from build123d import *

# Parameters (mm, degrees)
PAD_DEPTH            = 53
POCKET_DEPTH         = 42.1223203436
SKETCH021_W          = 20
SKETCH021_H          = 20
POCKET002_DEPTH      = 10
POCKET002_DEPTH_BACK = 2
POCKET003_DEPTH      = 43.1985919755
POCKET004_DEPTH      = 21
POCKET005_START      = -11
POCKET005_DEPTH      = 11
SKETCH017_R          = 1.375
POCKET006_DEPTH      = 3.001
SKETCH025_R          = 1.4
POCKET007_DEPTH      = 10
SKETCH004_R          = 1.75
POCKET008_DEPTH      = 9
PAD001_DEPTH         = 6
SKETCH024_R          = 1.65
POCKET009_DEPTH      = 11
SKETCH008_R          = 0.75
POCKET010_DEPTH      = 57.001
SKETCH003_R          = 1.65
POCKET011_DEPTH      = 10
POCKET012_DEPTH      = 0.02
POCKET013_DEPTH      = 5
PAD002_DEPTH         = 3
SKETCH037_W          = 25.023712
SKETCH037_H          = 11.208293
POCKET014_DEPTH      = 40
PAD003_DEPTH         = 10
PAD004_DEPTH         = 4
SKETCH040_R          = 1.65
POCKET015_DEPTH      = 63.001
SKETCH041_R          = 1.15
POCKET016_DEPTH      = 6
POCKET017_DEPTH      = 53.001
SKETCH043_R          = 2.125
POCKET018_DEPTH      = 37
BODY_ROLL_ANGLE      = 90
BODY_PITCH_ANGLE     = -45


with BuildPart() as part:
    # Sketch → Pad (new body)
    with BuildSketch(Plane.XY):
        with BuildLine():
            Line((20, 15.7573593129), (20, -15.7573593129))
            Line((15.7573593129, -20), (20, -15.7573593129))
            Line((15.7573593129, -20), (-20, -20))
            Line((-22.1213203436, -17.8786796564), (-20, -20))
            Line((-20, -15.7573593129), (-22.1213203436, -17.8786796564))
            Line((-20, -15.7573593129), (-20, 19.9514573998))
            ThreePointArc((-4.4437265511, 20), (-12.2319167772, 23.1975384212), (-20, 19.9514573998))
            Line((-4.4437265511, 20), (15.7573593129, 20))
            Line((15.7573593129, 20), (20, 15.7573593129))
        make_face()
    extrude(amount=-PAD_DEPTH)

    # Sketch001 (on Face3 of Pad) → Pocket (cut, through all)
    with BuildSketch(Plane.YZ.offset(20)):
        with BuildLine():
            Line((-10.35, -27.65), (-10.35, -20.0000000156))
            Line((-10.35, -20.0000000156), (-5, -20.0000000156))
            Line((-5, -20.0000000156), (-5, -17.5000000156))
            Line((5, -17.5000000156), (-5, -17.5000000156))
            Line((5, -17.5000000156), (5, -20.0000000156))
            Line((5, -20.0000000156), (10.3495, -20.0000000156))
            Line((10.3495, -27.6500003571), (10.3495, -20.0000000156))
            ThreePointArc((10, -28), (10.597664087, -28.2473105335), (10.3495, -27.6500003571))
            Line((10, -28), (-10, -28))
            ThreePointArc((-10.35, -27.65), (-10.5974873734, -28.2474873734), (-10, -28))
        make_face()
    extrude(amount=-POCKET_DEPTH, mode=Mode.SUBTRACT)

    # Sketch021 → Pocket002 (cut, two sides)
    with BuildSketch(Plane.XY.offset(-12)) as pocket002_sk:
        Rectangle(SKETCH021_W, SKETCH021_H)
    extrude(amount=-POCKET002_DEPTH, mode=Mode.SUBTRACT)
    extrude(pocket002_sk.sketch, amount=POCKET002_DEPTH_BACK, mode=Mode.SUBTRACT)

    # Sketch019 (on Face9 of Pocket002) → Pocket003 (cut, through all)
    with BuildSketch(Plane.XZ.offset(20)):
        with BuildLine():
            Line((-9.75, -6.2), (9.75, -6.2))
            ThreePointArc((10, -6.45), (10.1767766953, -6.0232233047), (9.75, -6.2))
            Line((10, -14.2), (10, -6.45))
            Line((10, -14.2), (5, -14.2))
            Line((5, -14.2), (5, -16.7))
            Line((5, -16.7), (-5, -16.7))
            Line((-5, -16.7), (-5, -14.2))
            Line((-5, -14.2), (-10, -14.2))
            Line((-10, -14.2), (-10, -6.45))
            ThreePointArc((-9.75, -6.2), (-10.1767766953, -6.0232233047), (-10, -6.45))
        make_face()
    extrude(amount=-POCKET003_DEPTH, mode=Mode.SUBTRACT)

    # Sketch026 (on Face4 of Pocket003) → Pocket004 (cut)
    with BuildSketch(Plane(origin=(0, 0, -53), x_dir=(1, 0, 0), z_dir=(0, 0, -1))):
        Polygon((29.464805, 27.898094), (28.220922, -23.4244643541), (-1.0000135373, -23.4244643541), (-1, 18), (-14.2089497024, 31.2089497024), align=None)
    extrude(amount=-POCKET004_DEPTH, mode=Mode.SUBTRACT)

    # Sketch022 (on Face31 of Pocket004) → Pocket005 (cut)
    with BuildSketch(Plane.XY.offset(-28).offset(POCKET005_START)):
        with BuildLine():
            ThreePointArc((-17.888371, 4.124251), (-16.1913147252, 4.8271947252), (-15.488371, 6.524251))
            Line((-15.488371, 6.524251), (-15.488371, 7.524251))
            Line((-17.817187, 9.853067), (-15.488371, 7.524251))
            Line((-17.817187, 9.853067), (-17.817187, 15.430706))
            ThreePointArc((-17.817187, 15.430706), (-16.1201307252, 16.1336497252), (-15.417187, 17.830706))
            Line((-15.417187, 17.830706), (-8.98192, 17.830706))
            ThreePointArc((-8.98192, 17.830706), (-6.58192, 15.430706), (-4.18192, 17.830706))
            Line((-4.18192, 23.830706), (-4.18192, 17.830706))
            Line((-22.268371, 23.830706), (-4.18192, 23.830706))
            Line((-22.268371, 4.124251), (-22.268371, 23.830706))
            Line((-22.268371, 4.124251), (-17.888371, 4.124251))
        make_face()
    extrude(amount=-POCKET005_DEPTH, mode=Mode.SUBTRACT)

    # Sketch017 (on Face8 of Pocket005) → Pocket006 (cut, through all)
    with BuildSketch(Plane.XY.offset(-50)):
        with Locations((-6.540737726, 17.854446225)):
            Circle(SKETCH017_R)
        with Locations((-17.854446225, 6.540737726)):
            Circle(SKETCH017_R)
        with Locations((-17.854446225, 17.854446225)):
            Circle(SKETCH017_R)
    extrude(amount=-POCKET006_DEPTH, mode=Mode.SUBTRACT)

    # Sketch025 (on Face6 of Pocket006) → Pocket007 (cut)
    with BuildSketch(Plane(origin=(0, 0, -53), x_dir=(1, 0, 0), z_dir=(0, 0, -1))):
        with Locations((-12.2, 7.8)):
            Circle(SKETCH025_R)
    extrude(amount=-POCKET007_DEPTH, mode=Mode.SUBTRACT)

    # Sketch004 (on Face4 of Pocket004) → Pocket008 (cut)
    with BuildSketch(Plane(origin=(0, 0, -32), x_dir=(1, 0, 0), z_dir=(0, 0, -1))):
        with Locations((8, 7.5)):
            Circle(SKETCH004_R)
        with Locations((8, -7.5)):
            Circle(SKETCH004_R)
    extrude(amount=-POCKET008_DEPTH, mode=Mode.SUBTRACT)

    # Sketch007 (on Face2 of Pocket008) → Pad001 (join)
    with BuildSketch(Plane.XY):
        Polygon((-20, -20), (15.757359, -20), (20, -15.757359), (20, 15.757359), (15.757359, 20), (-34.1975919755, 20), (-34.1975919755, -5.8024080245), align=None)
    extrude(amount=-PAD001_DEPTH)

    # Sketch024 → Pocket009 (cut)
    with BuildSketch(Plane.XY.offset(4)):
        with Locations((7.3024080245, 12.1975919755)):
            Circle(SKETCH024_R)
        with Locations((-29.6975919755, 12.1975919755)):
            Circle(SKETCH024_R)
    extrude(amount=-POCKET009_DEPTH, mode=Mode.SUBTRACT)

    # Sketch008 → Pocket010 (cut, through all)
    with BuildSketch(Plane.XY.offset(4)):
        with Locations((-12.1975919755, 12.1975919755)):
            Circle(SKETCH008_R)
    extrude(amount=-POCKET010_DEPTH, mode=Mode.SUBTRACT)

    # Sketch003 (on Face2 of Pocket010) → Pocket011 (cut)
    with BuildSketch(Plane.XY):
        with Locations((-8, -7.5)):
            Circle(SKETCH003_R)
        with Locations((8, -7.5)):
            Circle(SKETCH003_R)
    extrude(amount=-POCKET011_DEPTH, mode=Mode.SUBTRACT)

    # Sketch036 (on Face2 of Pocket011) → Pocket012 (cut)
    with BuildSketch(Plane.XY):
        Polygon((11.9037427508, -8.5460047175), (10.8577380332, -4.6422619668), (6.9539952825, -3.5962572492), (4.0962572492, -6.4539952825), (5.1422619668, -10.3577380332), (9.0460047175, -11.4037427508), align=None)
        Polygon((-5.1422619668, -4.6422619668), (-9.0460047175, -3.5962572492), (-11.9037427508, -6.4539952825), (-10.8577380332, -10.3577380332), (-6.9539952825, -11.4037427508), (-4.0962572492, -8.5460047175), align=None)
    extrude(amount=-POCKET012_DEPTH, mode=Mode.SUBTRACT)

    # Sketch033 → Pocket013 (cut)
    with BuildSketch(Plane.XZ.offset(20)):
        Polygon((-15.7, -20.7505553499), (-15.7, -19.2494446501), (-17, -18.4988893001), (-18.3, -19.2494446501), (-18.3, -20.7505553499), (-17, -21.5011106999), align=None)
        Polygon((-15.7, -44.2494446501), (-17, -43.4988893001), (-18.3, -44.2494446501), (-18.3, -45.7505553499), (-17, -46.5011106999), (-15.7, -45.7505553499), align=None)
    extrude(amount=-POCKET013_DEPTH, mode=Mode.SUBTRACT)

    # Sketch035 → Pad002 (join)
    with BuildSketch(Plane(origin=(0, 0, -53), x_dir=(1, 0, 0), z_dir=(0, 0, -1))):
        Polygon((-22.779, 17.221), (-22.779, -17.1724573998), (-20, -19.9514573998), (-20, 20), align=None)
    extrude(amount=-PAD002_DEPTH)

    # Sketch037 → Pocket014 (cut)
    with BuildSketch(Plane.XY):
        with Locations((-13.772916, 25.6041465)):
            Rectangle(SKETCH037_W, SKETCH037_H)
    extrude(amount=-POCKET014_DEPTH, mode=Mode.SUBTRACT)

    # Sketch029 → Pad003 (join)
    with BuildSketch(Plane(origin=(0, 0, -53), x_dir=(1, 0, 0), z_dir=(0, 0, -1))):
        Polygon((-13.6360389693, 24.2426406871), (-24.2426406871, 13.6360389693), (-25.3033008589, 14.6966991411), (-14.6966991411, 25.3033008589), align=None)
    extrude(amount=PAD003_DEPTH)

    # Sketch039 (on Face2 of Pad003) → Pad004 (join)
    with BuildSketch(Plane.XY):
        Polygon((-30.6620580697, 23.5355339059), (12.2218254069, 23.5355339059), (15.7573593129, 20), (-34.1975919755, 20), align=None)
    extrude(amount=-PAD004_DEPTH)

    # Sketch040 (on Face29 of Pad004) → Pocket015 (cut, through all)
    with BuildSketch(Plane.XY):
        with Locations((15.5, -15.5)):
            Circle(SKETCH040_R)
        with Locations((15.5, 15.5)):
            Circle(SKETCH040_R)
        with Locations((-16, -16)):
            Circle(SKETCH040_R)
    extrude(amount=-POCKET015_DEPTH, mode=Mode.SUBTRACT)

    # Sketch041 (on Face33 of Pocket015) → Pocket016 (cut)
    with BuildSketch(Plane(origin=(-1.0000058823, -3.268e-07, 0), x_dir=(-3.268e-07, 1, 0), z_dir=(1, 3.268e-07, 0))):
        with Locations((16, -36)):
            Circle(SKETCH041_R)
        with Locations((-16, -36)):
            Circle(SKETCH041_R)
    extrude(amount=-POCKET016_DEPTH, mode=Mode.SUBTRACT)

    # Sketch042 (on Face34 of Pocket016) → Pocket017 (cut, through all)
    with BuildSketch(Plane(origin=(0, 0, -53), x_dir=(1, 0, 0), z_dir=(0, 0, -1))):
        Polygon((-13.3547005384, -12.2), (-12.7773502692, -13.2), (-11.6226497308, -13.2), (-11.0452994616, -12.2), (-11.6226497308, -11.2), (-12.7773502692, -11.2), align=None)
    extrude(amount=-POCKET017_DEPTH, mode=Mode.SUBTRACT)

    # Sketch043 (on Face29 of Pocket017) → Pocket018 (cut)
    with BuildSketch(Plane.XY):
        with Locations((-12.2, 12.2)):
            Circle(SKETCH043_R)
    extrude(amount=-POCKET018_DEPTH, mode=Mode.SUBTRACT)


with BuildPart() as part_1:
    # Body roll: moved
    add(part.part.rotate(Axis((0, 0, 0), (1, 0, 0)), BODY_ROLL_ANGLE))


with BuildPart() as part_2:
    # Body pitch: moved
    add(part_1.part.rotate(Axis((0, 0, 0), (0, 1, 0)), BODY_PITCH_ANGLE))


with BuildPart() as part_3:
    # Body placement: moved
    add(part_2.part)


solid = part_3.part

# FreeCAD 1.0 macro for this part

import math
import FreeCAD as App
import Part
import Sketcher
Q = App.Units.Quantity


def add_polygon(sketch, points):
    """Adds a closed chain of lines whose ends are joined by coincident constraints."""
    first, n = sketch.GeometryCount, len(points)
    for a, b in zip(points, points[1:] + points[:1]):
        sketch.addGeometry(Part.LineSegment(App.Vector(*a, 0), App.Vector(*b, 0)), False)
    for i in range(n):
        sketch.addConstraint(Sketcher.Constraint("Coincident", first + i, 2, first + (i + 1) % n, 1))

doc = App.newDocument("Part")
body = doc.addObject("PartDesign::Body", "Body")

sketch1 = body.newObject("Sketcher::SketchObject", "Sketch")
sketch1.AttachmentSupport = (doc.getObject("XY_Plane"), [""])
sketch1.MapMode = "FlatFace"
sketch1.addGeometry(Part.LineSegment(App.Vector(20, -15.8, 0), App.Vector(20, 15.8, 0)), False)
sketch1.addGeometry(Part.LineSegment(App.Vector(20, 15.8, 0), App.Vector(15.8, 20, 0)), False)
sketch1.addGeometry(Part.LineSegment(App.Vector(15.8, 20, 0), App.Vector(-4.4, 20, 0)), False)
sketch1.addGeometry(Part.ArcOfCircle(Part.Circle(App.Vector(-12.2, 12.2, 0), App.Vector(0, 0, 1), 11), math.radians(45), math.radians(135)), False)
sketch1.addGeometry(Part.LineSegment(App.Vector(-20, 20, 0), App.Vector(-20, -15.8, 0)), False)
sketch1.addGeometry(Part.LineSegment(App.Vector(-20, -15.8, 0), App.Vector(-22.1, -17.9, 0)), False)
sketch1.addGeometry(Part.LineSegment(App.Vector(-22.1, -17.9, 0), App.Vector(-20, -20, 0)), False)
sketch1.addGeometry(Part.LineSegment(App.Vector(-20, -20, 0), App.Vector(15.8, -20, 0)), False)
sketch1.addGeometry(Part.LineSegment(App.Vector(15.8, -20, 0), App.Vector(20, -15.8, 0)), False)
sketch1.addConstraint(Sketcher.Constraint("Coincident", 0, 2, 1, 1))
sketch1.addConstraint(Sketcher.Constraint("Coincident", 1, 2, 2, 1))
sketch1.addConstraint(Sketcher.Constraint("Coincident", 2, 2, 3, 1))
sketch1.addConstraint(Sketcher.Constraint("Coincident", 3, 2, 4, 1))
sketch1.addConstraint(Sketcher.Constraint("Coincident", 4, 2, 5, 1))
sketch1.addConstraint(Sketcher.Constraint("Coincident", 5, 2, 6, 1))
sketch1.addConstraint(Sketcher.Constraint("Coincident", 6, 2, 7, 1))
sketch1.addConstraint(Sketcher.Constraint("Coincident", 7, 2, 8, 1))
sketch1.addConstraint(Sketcher.Constraint("Coincident", 8, 2, 0, 1))
sketch1.addConstraint(Sketcher.Constraint("Vertical", 0))
sketch1.addConstraint(Sketcher.Constraint("Horizontal", 2))
sketch1.addConstraint(Sketcher.Constraint("Vertical", 4))
sketch1.addConstraint(Sketcher.Constraint("Horizontal", 7))
sketch1.addConstraint(Sketcher.Constraint("Symmetric", 0, 2, 4, 2, -1, 1))
sketch1.addConstraint(Sketcher.Constraint("Symmetric", 1, 2, 7, 2, -1))
sketch1.addConstraint(Sketcher.Constraint("Perpendicular", 1, 5))
sketch1.addConstraint(Sketcher.Constraint("Perpendicular", 5, 6))
sketch1.addConstraint(Sketcher.Constraint("Perpendicular", 6, 8))
sketch1.addConstraint(Sketcher.Constraint("Horizontal", 4, 2, 8, 2))
sketch1.addConstraint(Sketcher.Constraint("Vertical", 4, 2, 6, 2))
sketch1.addConstraint(Sketcher.Constraint("Radius", 3, Q("11 mm")))
sketch1.addConstraint(Sketcher.Constraint("Distance", 1, Q("6 mm")))
sketch1.addConstraint(Sketcher.Constraint("DistanceX", -1, 1, 0, 2, Q("20 mm")))
sketch1.addConstraint(Sketcher.Constraint("DistanceY", -1, 1, 1, 2, Q("20 mm")))
sketch1.addConstraint(Sketcher.Constraint("DistanceY", 0, 2, 3, 2, Q("4.194098 mm")))
sketch1.addConstraint(Sketcher.Constraint("DistanceX", 2, 2, 2, 1, Q("20.201086 mm")))
pad1 = body.newObject("PartDesign::Pad", "Pad")
pad1.Profile = sketch1
pad1.Length = 53
pad1.Reversed = True

sketch2 = body.newObject("Sketcher::SketchObject", "Sketch001")
sketch2.AttachmentSupport = (doc.getObject("YZ_Plane"), [""])
sketch2.MapMode = "FlatFace"
sketch2.AttachmentOffset = App.Placement(App.Vector(0, 0, 20), App.Rotation())
sketch2.addGeometry(Part.LineSegment(App.Vector(-10.35, -20, 0), App.Vector(-10.35, -27.65, 0)), False)
sketch2.addGeometry(Part.ArcOfCircle(Part.Circle(App.Vector(-10.35, -28, 0), App.Vector(0, 0, 1), 0.35), math.radians(90), math.radians(360)), False)
sketch2.addGeometry(Part.LineSegment(App.Vector(-10, -28, 0), App.Vector(10, -28, 0)), False)
sketch2.addGeometry(Part.ArcOfCircle(Part.Circle(App.Vector(10.35, -28, 0), App.Vector(0, 0, 1), 0.35), math.radians(180), math.radians(450)), False)
sketch2.addGeometry(Part.LineSegment(App.Vector(10.35, -27.65, 0), App.Vector(10.35, -20, 0)), False)
sketch2.addGeometry(Part.LineSegment(App.Vector(10.35, -20, 0), App.Vector(5, -20, 0)), False)
sketch2.addGeometry(Part.LineSegment(App.Vector(5, -20, 0), App.Vector(5, -17.5, 0)), False)
sketch2.addGeometry(Part.LineSegment(App.Vector(5, -17.5, 0), App.Vector(-5, -17.5, 0)), False)
sketch2.addGeometry(Part.LineSegment(App.Vector(-5, -17.5, 0), App.Vector(-5, -20, 0)), False)
sketch2.addGeometry(Part.LineSegment(App.Vector(-5, -20, 0), App.Vector(-10.35, -20, 0)), False)
sketch2.addConstraint(Sketcher.Constraint("Coincident", 0, 2, 1, 1))
sketch2.addConstraint(Sketcher.Constraint("Coincident", 1, 2, 2, 1))
sketch2.addConstraint(Sketcher.Constraint("Coincident", 2, 2, 3, 1))
sketch2.addConstraint(Sketcher.Constraint("Coincident", 3, 2, 4, 1))
sketch2.addConstraint(Sketcher.Constraint("Coincident", 4, 2, 5, 1))
sketch2.addConstraint(Sketcher.Constraint("Coincident", 5, 2, 6, 1))
sketch2.addConstraint(Sketcher.Constraint("Coincident", 6, 2, 7, 1))
sketch2.addConstraint(Sketcher.Constraint("Coincident", 7, 2, 8, 1))
sketch2.addConstraint(Sketcher.Constraint("Coincident", 8, 2, 9, 1))
sketch2.addConstraint(Sketcher.Constraint("Coincident", 9, 2, 0, 1))
sketch2.addConstraint(Sketcher.Constraint("Vertical", 0))
sketch2.addConstraint(Sketcher.Constraint("Horizontal", 2))
sketch2.addConstraint(Sketcher.Constraint("Vertical", 4))
sketch2.addConstraint(Sketcher.Constraint("Horizontal", 5))
sketch2.addConstraint(Sketcher.Constraint("Vertical", 6))
sketch2.addConstraint(Sketcher.Constraint("Horizontal", 7))
sketch2.addConstraint(Sketcher.Constraint("Vertical", 8))
sketch2.addConstraint(Sketcher.Constraint("Horizontal", 9))
sketch2.addConstraint(Sketcher.Constraint("Equal", 1, 3))
sketch2.addConstraint(Sketcher.Constraint("Symmetric", 1, 3, 3, 3, -2))
sketch2.addConstraint(Sketcher.Constraint("Symmetric", 5, 2, 8, 2, -2))
sketch2.addConstraint(Sketcher.Constraint("Horizontal", 3, 3, 1, 2))
sketch2.addConstraint(Sketcher.Constraint("Vertical", 1, 3, 0, 2))
sketch2.addConstraint(Sketcher.Constraint("DistanceX", 2, 1, 2, 2, Q("20 mm")))
sketch2.addConstraint(Sketcher.Constraint("DistanceX", 7, 2, 7, 1, Q("10 mm")))
sketch2.addConstraint(Sketcher.Constraint("Radius", 1, Q("0.35 mm")))
sketch2.addConstraint(Sketcher.Constraint("DistanceY", 6, 1, 6, 2, Q("2.5 mm")))
sketch2.addConstraint(Sketcher.Constraint("DistanceY", 1, 3, -1, 1, Q("28 mm")))
sketch2.addConstraint(Sketcher.Constraint("DistanceY", 4, 2, -1, 1, Q("20 mm")))
sketch2.addConstraint(Sketcher.Constraint("DistanceX", 5, 2, 5, 1, Q("5.3495 mm")))
pocket1 = body.newObject("PartDesign::Pocket", "Pocket")
pocket1.Profile = sketch2
pocket1.Type = "ThroughAll"

sketch3 = body.newObject("Sketcher::SketchObject", "Sketch002")
sketch3.AttachmentSupport = (doc.getObject("XY_Plane"), [""])
sketch3.MapMode = "FlatFace"
sketch3.AttachmentOffset = App.Placement(App.Vector(0, 0, -12), App.Rotation())
add_polygon(sketch3, [(-10, 10), (-10, -10), (10, -10), (10, 10)])
sketch3.addConstraint(Sketcher.Constraint("Vertical", 0))
sketch3.addConstraint(Sketcher.Constraint("Horizontal", 1))
sketch3.addConstraint(Sketcher.Constraint("Vertical", 2))
sketch3.addConstraint(Sketcher.Constraint("Horizontal", 3))
sketch3.addConstraint(Sketcher.Constraint("Symmetric", 0, 2, 2, 2, -1, 1))
sketch3.addConstraint(Sketcher.Constraint("Equal", 3, 0))
sketch3.addConstraint(Sketcher.Constraint("DistanceX", 1, 1, 1, 2, Q("20 mm")))
pocket2 = body.newObject("PartDesign::Pocket", "Pocket001")
pocket2.Profile = sketch3
pocket2.Type = "TwoLengths"
pocket2.Length = 10
pocket2.Length2 = 2

sketch4 = body.newObject("Sketcher::SketchObject", "Sketch003")
sketch4.AttachmentSupport = (doc.getObject("XZ_Plane"), [""])
sketch4.MapMode = "FlatFace"
sketch4.AttachmentOffset = App.Placement(App.Vector(0, 0, 20), App.Rotation())
sketch4.addGeometry(Part.LineSegment(App.Vector(9.75, -6.2, 0), App.Vector(-9.75, -6.2, 0)), False)
sketch4.addGeometry(Part.ArcOfCircle(Part.Circle(App.Vector(-10, -6.2, 0), App.Vector(0, 0, 1), 0.25), math.radians(0), math.radians(270)), False)
sketch4.addGeometry(Part.LineSegment(App.Vector(-10, -6.45, 0), App.Vector(-10, -14.2, 0)), False)
sketch4.addGeometry(Part.LineSegment(App.Vector(-10, -14.2, 0), App.Vector(-5, -14.2, 0)), False)
sketch4.addGeometry(Part.LineSegment(App.Vector(-5, -14.2, 0), App.Vector(-5, -16.7, 0)), False)
sketch4.addGeometry(Part.LineSegment(App.Vector(-5, -16.7, 0), App.Vector(5, -16.7, 0)), False)
sketch4.addGeometry(Part.LineSegment(App.Vector(5, -16.7, 0), App.Vector(5, -14.2, 0)), False)
sketch4.addGeometry(Part.LineSegment(App.Vector(5, -14.2, 0), App.Vector(10, -14.2, 0)), False)
sketch4.addGeometry(Part.LineSegment(App.Vector(10, -14.2, 0), App.Vector(10, -6.45, 0)), False)
sketch4.addGeometry(Part.ArcOfCircle(Part.Circle(App.Vector(10, -6.2, 0), App.Vector(0, 0, 1), 0.25), math.radians(-90), math.radians(180)), False)
sketch4.addConstraint(Sketcher.Constraint("Coincident", 0, 2, 1, 1))
sketch4.addConstraint(Sketcher.Constraint("Coincident", 1, 2, 2, 1))
sketch4.addConstraint(Sketcher.Constraint("Coincident", 2, 2, 3, 1))
sketch4.addConstraint(Sketcher.Constraint("Coincident", 3, 2, 4, 1))
sketch4.addConstraint(Sketcher.Constraint("Coincident", 4, 2, 5, 1))
sketch4.addConstraint(Sketcher.Constraint("Coincident", 5, 2, 6, 1))
sketch4.addConstraint(Sketcher.Constraint("Coincident", 6, 2, 7, 1))
sketch4.addConstraint(Sketcher.Constraint("Coincident", 7, 2, 8, 1))
sketch4.addConstraint(Sketcher.Constraint("Coincident", 8, 2, 9, 1))
sketch4.addConstraint(Sketcher.Constraint("Coincident", 9, 2, 0, 1))
sketch4.addConstraint(Sketcher.Constraint("Horizontal", 0))
sketch4.addConstraint(Sketcher.Constraint("Vertical", 2))
sketch4.addConstraint(Sketcher.Constraint("Horizontal", 3))
sketch4.addConstraint(Sketcher.Constraint("Vertical", 4))
sketch4.addConstraint(Sketcher.Constraint("Horizontal", 5))
sketch4.addConstraint(Sketcher.Constraint("Vertical", 6))
sketch4.addConstraint(Sketcher.Constraint("Horizontal", 7))
sketch4.addConstraint(Sketcher.Constraint("Vertical", 8))
sketch4.addConstraint(Sketcher.Constraint("Equal", 1, 9))
sketch4.addConstraint(Sketcher.Constraint("Symmetric", 1, 3, 9, 3, -2))
sketch4.addConstraint(Sketcher.Constraint("Symmetric", 3, 2, 6, 2, -2))
sketch4.addConstraint(Sketcher.Constraint("Horizontal", 9, 3, 0, 2))
sketch4.addConstraint(Sketcher.Constraint("Vertical", 9, 3, 7, 2))
sketch4.addConstraint(Sketcher.Constraint("Equal", 3, 7))
sketch4.addConstraint(Sketcher.Constraint("DistanceX", 3, 1, 3, 2, Q("5 mm")))
sketch4.addConstraint(Sketcher.Constraint("DistanceX", 5, 1, 5, 2, Q("10 mm")))
sketch4.addConstraint(Sketcher.Constraint("Radius", 1, Q("0.25 mm")))
sketch4.addConstraint(Sketcher.Constraint("DistanceY", 4, 2, 4, 1, Q("2.5 mm")))
sketch4.addConstraint(Sketcher.Constraint("DistanceY", 2, 2, 1, 3, Q("8 mm")))
sketch4.addConstraint(Sketcher.Constraint("DistanceY", 1, 3, -1, 1, Q("6.2 mm")))
pocket3 = body.newObject("PartDesign::Pocket", "Pocket002")
pocket3.Profile = sketch4
pocket3.Type = "ThroughAll"

sketch5 = body.newObject("Sketcher::SketchObject", "Sketch004")
sketch5.AttachmentSupport = (doc.getObject("XY_Plane"), [""])
sketch5.MapMode = "FlatFace"
sketch5.AttachmentOffset = App.Placement(App.Vector(0, 0, -53), App.Rotation())
add_polygon(sketch5, [(28, 23), (29, -28), (-14, -31), (-1, -18), (-1, 23)])
sketch5.addConstraint(Sketcher.Constraint("Horizontal", 4))
sketch5.addConstraint(Sketcher.Constraint("Angle", 2, Q("45 deg")))
sketch5.addConstraint(Sketcher.Constraint("Angle", 3, Q("90.000019 deg")))
sketch5.addConstraint(Sketcher.Constraint("DistanceX", 2, 2, -1, 1, Q("1 mm")))
sketch5.addConstraint(Sketcher.Constraint("DistanceY", 2, 2, -1, 1, Q("18 mm")))
sketch5.addConstraint(Sketcher.Constraint("Distance", 0, Q("51.33763 mm")))
sketch5.addConstraint(Sketcher.Constraint("Distance", 1, Q("43.799071 mm")))
sketch5.addConstraint(Sketcher.Constraint("DistanceX", 4, 1, 4, 2, Q("29.220936 mm")))
sketch5.addConstraint(Sketcher.Constraint("DistanceX", 1, 2, -1, 1, Q("14.20895 mm")))
sketch5.addConstraint(Sketcher.Constraint("DistanceX", 3, 2, 0, 2, Q("30.464819 mm")))
pocket4 = body.newObject("PartDesign::Pocket", "Pocket003")
pocket4.Profile = sketch5
pocket4.Length = 21
pocket4.Reversed = True

sketch6 = body.newObject("Sketcher::SketchObject", "Sketch005")
sketch6.AttachmentSupport = (doc.getObject("XY_Plane"), [""])
sketch6.MapMode = "FlatFace"
sketch6.AttachmentOffset = App.Placement(App.Vector(0, 0, -39), App.Rotation())
sketch6.addGeometry(Part.ArcOfCircle(Part.Circle(App.Vector(-17.9, 6.5, 0), App.Vector(0, 0, 1), 2.4), math.radians(-90), math.radians(0)), False)
sketch6.addGeometry(Part.LineSegment(App.Vector(-15.5, 6.5, 0), App.Vector(-15.5, 7.5, 0)), False)
sketch6.addGeometry(Part.LineSegment(App.Vector(-15.5, 7.5, 0), App.Vector(-17.8, 9.9, 0)), False)
sketch6.addGeometry(Part.LineSegment(App.Vector(-17.8, 9.9, 0), App.Vector(-17.8, 15.4, 0)), False)
sketch6.addGeometry(Part.ArcOfCircle(Part.Circle(App.Vector(-17.8, 17.8, 0), App.Vector(0, 0, 1), 2.4), math.radians(-90), math.radians(0)), False)
sketch6.addGeometry(Part.LineSegment(App.Vector(-15.4, 17.8, 0), App.Vector(-9, 17.8, 0)), False)
sketch6.addGeometry(Part.ArcOfCircle(Part.Circle(App.Vector(-6.6, 17.8, 0), App.Vector(0, 0, 1), 2.4), math.radians(180), math.radians(360)), False)
sketch6.addGeometry(Part.LineSegment(App.Vector(-4.2, 17.8, 0), App.Vector(-4.2, 23.8, 0)), False)
sketch6.addGeometry(Part.LineSegment(App.Vector(-4.2, 23.8, 0), App.Vector(-22.3, 23.8, 0)), False)
sketch6.addGeometry(Part.LineSegment(App.Vector(-22.3, 23.8, 0), App.Vector(-22.3, 4.1, 0)), False)
sketch6.addGeometry(Part.LineSegment(App.Vector(-22.3, 4.1, 0), App.Vector(-17.9, 4.1, 0)), False)
sketch6.addConstraint(Sketcher.Constraint("Tangent", 0, 2, 1, 1))
sketch6.addConstraint(Sketcher.Constraint("Coincident", 1, 2, 2, 1))
sketch6.addConstraint(Sketcher.Constraint("Coincident", 2, 2, 3, 1))
sketch6.addConstraint(Sketcher.Constraint("Coincident", 3, 2, 4, 1))
sketch6.addConstraint(Sketcher.Constraint("Coincident", 4, 2, 5, 1))
sketch6.addConstraint(Sketcher.Constraint("Coincident", 5, 2, 6, 1))
sketch6.addConstraint(Sketcher.Constraint("Tangent", 6, 2, 7, 1))
sketch6.addConstraint(Sketcher.Constraint("Coincident", 7, 2, 8, 1))
sketch6.addConstraint(Sketcher.Constraint("Coincident", 8, 2, 9, 1))
sketch6.addConstraint(Sketcher.Constraint("Coincident", 9, 2, 10, 1))
sketch6.addConstraint(Sketcher.Constraint("Tangent", 10, 2, 0, 1))
sketch6.addConstraint(Sketcher.Constraint("Vertical", 1))
sketch6.addConstraint(Sketcher.Constraint("Vertical", 3))
sketch6.addConstraint(Sketcher.Constraint("Horizontal", 5))
sketch6.addConstraint(Sketcher.Constraint("Vertical", 7))
sketch6.addConstraint(Sketcher.Constraint("Horizontal", 8))
sketch6.addConstraint(Sketcher.Constraint("Vertical", 9))
sketch6.addConstraint(Sketcher.Constraint("Horizontal", 10))
sketch6.addConstraint(Sketcher.Constraint("Equal", 0, 4))
sketch6.addConstraint(Sketcher.Constraint("Equal", 4, 6))
sketch6.addConstraint(Sketcher.Constraint("Horizontal", 4, 3, 6, 3))
sketch6.addConstraint(Sketcher.Constraint("Horizontal", 6, 3, 4, 2))
sketch6.addConstraint(Sketcher.Constraint("Vertical", 4, 3, 2, 2))
sketch6.addConstraint(Sketcher.Constraint("Radius", 0, Q("2.4 mm")))
sketch6.addConstraint(Sketcher.Constraint("DistanceY", 1, 1, 1, 2, Q("1 mm")))
sketch6.addConstraint(Sketcher.Constraint("DistanceY", 7, 1, 7, 2, Q("6 mm")))
sketch6.addConstraint(Sketcher.Constraint("Angle", 2, Q("135 deg")))
sketch6.addConstraint(Sketcher.Constraint("DistanceX", 10, 1, 10, 2, Q("4.38 mm")))
sketch6.addConstraint(Sketcher.Constraint("DistanceX", 8, 2, 8, 1, Q("18.086451 mm")))
sketch6.addConstraint(Sketcher.Constraint("DistanceY", 3, 1, 3, 2, Q("5.577639 mm")))
sketch6.addConstraint(Sketcher.Constraint("DistanceX", 5, 1, 5, 2, Q("6.435267 mm")))
sketch6.addConstraint(Sketcher.Constraint("DistanceX", 0, 3, -1, 1, Q("17.888371 mm")))
sketch6.addConstraint(Sketcher.Constraint("DistanceY", -1, 1, 0, 3, Q("6.524251 mm")))
pocket5 = body.newObject("PartDesign::Pocket", "Pocket004")
pocket5.Profile = sketch6
pocket5.Length = 11

sketch7 = body.newObject("Sketcher::SketchObject", "Sketch006")
sketch7.AttachmentSupport = (doc.getObject("XY_Plane"), [""])
sketch7.MapMode = "FlatFace"
sketch7.AttachmentOffset = App.Placement(App.Vector(0, 0, -50), App.Rotation())
sketch7.addGeometry(Part.Circle(App.Vector(-6.5, 17.9, 0), App.Vector(0, 0, 1), 1.4), False)
sketch7.addGeometry(Part.Circle(App.Vector(-17.9, 6.5, 0), App.Vector(0, 0, 1), 1.4), False)
sketch7.addGeometry(Part.Circle(App.Vector(-17.9, 17.9, 0), App.Vector(0, 0, 1), 1.4), False)
sketch7.addConstraint(Sketcher.Constraint("Equal", 0, 1))
sketch7.addConstraint(Sketcher.Constraint("Equal", 1, 2))
sketch7.addConstraint(Sketcher.Constraint("Horizontal", 0, 3, 2, 3))
sketch7.addConstraint(Sketcher.Constraint("Vertical", 1, 3, 2, 3))
sketch7.addConstraint(Sketcher.Constraint("Diameter", 0, Q("2.75 mm")))
sketch7.addConstraint(Sketcher.Constraint("DistanceX", 1, 3, 0, 3, Q("11.313708 mm")))
sketch7.addConstraint(Sketcher.Constraint("DistanceY", 1, 3, 0, 3, Q("11.313708 mm")))
sketch7.addConstraint(Sketcher.Constraint("DistanceX", 0, 3, -1, 1, Q("6.540738 mm")))
sketch7.addConstraint(Sketcher.Constraint("DistanceY", -1, 1, 0, 3, Q("17.854446 mm")))
pocket6 = body.newObject("PartDesign::Pocket", "Pocket005")
pocket6.Profile = sketch7
pocket6.Type = "ThroughAll"

sketch8 = body.newObject("Sketcher::SketchObject", "Sketch007")
sketch8.AttachmentSupport = (doc.getObject("XY_Plane"), [""])
sketch8.MapMode = "FlatFace"
sketch8.AttachmentOffset = App.Placement(App.Vector(0, 0, -53), App.Rotation())
sketch8.addGeometry(Part.Circle(App.Vector(-12.2, -7.8, 0), App.Vector(0, 0, 1), 1.4), False)
sketch8.addConstraint(Sketcher.Constraint("Diameter", 0, Q("2.8 mm")))
sketch8.addConstraint(Sketcher.Constraint("DistanceX", 0, 3, -1, 1, Q("12.2 mm")))
sketch8.addConstraint(Sketcher.Constraint("DistanceY", 0, 3, -1, 1, Q("7.8 mm")))
pocket7 = body.newObject("PartDesign::Pocket", "Pocket006")
pocket7.Profile = sketch8
pocket7.Length = 10
pocket7.Reversed = True

sketch9 = body.newObject("Sketcher::SketchObject", "Sketch008")
sketch9.AttachmentSupport = (doc.getObject("XY_Plane"), [""])
sketch9.MapMode = "FlatFace"
sketch9.AttachmentOffset = App.Placement(App.Vector(0, 0, -32), App.Rotation())
sketch9.addGeometry(Part.Circle(App.Vector(8, -7.5, 0), App.Vector(0, 0, 1), 1.8), False)
sketch9.addGeometry(Part.Circle(App.Vector(8, 7.5, 0), App.Vector(0, 0, 1), 1.8), False)
sketch9.addConstraint(Sketcher.Constraint("Equal", 0, 1))
sketch9.addConstraint(Sketcher.Constraint("Symmetric", 0, 3, 1, 3, -1))
sketch9.addConstraint(Sketcher.Constraint("Diameter", 0, Q("3.5 mm")))
sketch9.addConstraint(Sketcher.Constraint("DistanceX", -1, 1, 0, 3, Q("8 mm")))
sketch9.addConstraint(Sketcher.Constraint("DistanceY", 0, 3, 1, 3, Q("15 mm")))
pocket8 = body.newObject("PartDesign::Pocket", "Pocket007")
pocket8.Profile = sketch9
pocket8.Length = 9
pocket8.Reversed = True

sketch10 = body.newObject("Sketcher::SketchObject", "Sketch009")
sketch10.AttachmentSupport = (doc.getObject("XY_Plane"), [""])
sketch10.MapMode = "FlatFace"
add_polygon(sketch10, [(-20, -20), (16, -20), (20, -16), (20, 16), (16, 20), (-34, 20), (-34, -6)])
sketch10.addConstraint(Sketcher.Constraint("Horizontal", 0))
sketch10.addConstraint(Sketcher.Constraint("Vertical", 2))
sketch10.addConstraint(Sketcher.Constraint("Horizontal", 4))
sketch10.addConstraint(Sketcher.Constraint("Vertical", 5))
sketch10.addConstraint(Sketcher.Constraint("Symmetric", 0, 2, 3, 2, -1))
sketch10.addConstraint(Sketcher.Constraint("Perpendicular", 1, 3))
sketch10.addConstraint(Sketcher.Constraint("Parallel", 3, 6))
sketch10.addConstraint(Sketcher.Constraint("Equal", 1, 3))
sketch10.addConstraint(Sketcher.Constraint("Distance", 1, Q("6 mm")))
sketch10.addConstraint(Sketcher.Constraint("DistanceY", 0, 2, -1, 1, Q("20 mm")))
sketch10.addConstraint(Sketcher.Constraint("DistanceX", -1, 1, 1, 2, Q("20 mm")))
sketch10.addConstraint(Sketcher.Constraint("DistanceX", 6, 2, -1, 1, Q("20 mm")))
sketch10.addConstraint(Sketcher.Constraint("DistanceX", 4, 2, 4, 1, Q("49.954951 mm")))
pad2 = body.newObject("PartDesign::Pad", "Pad001")
pad2.Profile = sketch10
pad2.Length = 6
pad2.Reversed = True

sketch11 = body.newObject("Sketcher::SketchObject", "Sketch010")
sketch11.AttachmentSupport = (doc.getObject("XY_Plane"), [""])
sketch11.MapMode = "FlatFace"
sketch11.AttachmentOffset = App.Placement(App.Vector(0, 0, 4), App.Rotation())
sketch11.addGeometry(Part.Circle(App.Vector(7.3, 12.2, 0), App.Vector(0, 0, 1), 1.6), False)
sketch11.addGeometry(Part.Circle(App.Vector(-29.7, 12.2, 0), App.Vector(0, 0, 1), 1.6), False)
sketch11.addConstraint(Sketcher.Constraint("Equal", 0, 1))
sketch11.addConstraint(Sketcher.Constraint("Horizontal", 0, 3, 1, 3))
sketch11.addConstraint(Sketcher.Constraint("Diameter", 0, Q("3.3 mm")))
sketch11.addConstraint(Sketcher.Constraint("DistanceX", 1, 3, 0, 3, Q("37 mm")))
sketch11.addConstraint(Sketcher.Constraint("DistanceX", -1, 1, 0, 3, Q("7.302408 mm")))
sketch11.addConstraint(Sketcher.Constraint("DistanceY", -1, 1, 0, 3, Q("12.197592 mm")))
pocket9 = body.newObject("PartDesign::Pocket", "Pocket008")
pocket9.Profile = sketch11
pocket9.Length = 11

sketch12 = body.newObject("Sketcher::SketchObject", "Sketch011")
sketch12.AttachmentSupport = (doc.getObject("XY_Plane"), [""])
sketch12.MapMode = "FlatFace"
sketch12.AttachmentOffset = App.Placement(App.Vector(0, 0, 4), App.Rotation())
sketch12.addGeometry(Part.Circle(App.Vector(-12.2, 12.2, 0), App.Vector(0, 0, 1), 0.8), False)
sketch12.addConstraint(Sketcher.Constraint("Diameter", 0, Q("1.5 mm")))
sketch12.addConstraint(Sketcher.Constraint("DistanceX", 0, 3, -1, 1, Q("12.197592 mm")))
sketch12.addConstraint(Sketcher.Constraint("DistanceY", -1, 1, 0, 3, Q("12.197592 mm")))
pocket10 = body.newObject("PartDesign::Pocket", "Pocket009")
pocket10.Profile = sketch12
pocket10.Type = "ThroughAll"

sketch13 = body.newObject("Sketcher::SketchObject", "Sketch012")
sketch13.AttachmentSupport = (doc.getObject("XY_Plane"), [""])
sketch13.MapMode = "FlatFace"
sketch13.addGeometry(Part.Circle(App.Vector(-8, -7.5, 0), App.Vector(0, 0, 1), 1.6), False)
sketch13.addGeometry(Part.Circle(App.Vector(8, -7.5, 0), App.Vector(0, 0, 1), 1.6), False)
sketch13.addConstraint(Sketcher.Constraint("Equal", 0, 1))
sketch13.addConstraint(Sketcher.Constraint("Symmetric", 0, 3, 1, 3, -2))
sketch13.addConstraint(Sketcher.Constraint("Diameter", 0, Q("3.3 mm")))
sketch13.addConstraint(Sketcher.Constraint("DistanceX", 0, 3, -1, 1, Q("8 mm")))
sketch13.addConstraint(Sketcher.Constraint("DistanceY", 0, 3, -1, 1, Q("7.5 mm")))
pocket11 = body.newObject("PartDesign::Pocket", "Pocket010")
pocket11.Profile = sketch13
pocket11.Length = 10

sketch14 = body.newObject("Sketcher::SketchObject", "Sketch013")
sketch14.AttachmentSupport = (doc.getObject("XY_Plane"), [""])
sketch14.MapMode = "FlatFace"
add_polygon(sketch14, [(11.9, -8.5), (10.9, -4.6), (7, -3.6), (4.1, -6.5), (5.1, -10.4), (9, -11.4)])
add_polygon(sketch14, [(-5.1, -4.6), (-9, -3.6), (-11.9, -6.5), (-10.9, -10.4), (-7, -11.4), (-4.1, -8.5)])
sketch14.addConstraint(Sketcher.Constraint("Parallel", 0, 3))
sketch14.addConstraint(Sketcher.Constraint("Parallel", 1, 4))
sketch14.addConstraint(Sketcher.Constraint("Parallel", 2, 5))
sketch14.addConstraint(Sketcher.Constraint("Parallel", 4, 6))
sketch14.addConstraint(Sketcher.Constraint("Parallel", 5, 7))
sketch14.addConstraint(Sketcher.Constraint("Parallel", 3, 8))
sketch14.addConstraint(Sketcher.Constraint("Parallel", 6, 9))
sketch14.addConstraint(Sketcher.Constraint("Parallel", 7, 10))
sketch14.addConstraint(Sketcher.Constraint("Parallel", 8, 11))
sketch14.addConstraint(Sketcher.Constraint("Horizontal", 1, 2, 6, 2))
sketch14.addConstraint(Sketcher.Constraint("Horizontal", 2, 2, 7, 2))
sketch14.addConstraint(Sketcher.Constraint("Horizontal", 3, 2, 8, 2))
sketch14.addConstraint(Sketcher.Constraint("Horizontal", 4, 2, 9, 2))
sketch14.addConstraint(Sketcher.Constraint("Horizontal", 5, 2, 10, 2))
sketch14.addConstraint(Sketcher.Constraint("Equal", 0, 1))
sketch14.addConstraint(Sketcher.Constraint("Equal", 1, 2))
sketch14.addConstraint(Sketcher.Constraint("Equal", 2, 3))
sketch14.addConstraint(Sketcher.Constraint("Angle", 0, Q("105 deg")))
sketch14.addConstraint(Sketcher.Constraint("Angle", 1, Q("165 deg")))
sketch14.addConstraint(Sketcher.Constraint("Angle", 2, Q("-135 deg")))
sketch14.addConstraint(Sketcher.Constraint("DistanceX", 6, 2, 1, 2, Q("16 mm")))
sketch14.addConstraint(Sketcher.Constraint("Distance", 0, Q("4.041452 mm")))
sketch14.addConstraint(Sketcher.Constraint("DistanceX", -1, 1, 0, 2, Q("10.857738 mm")))
sketch14.addConstraint(Sketcher.Constraint("DistanceY", 0, 2, -1, 1, Q("4.642262 mm")))
pocket12 = body.newObject("PartDesign::Pocket", "Pocket011")
pocket12.Profile = sketch14
pocket12.Length = 0.02

sketch15 = body.newObject("Sketcher::SketchObject", "Sketch014")
sketch15.AttachmentSupport = (doc.getObject("XZ_Plane"), [""])
sketch15.MapMode = "FlatFace"
sketch15.AttachmentOffset = App.Placement(App.Vector(0, 0, 20), App.Rotation())
add_polygon(sketch15, [(-15.7, -20.8), (-15.7, -19.2), (-17, -18.5), (-18.3, -19.2), (-18.3, -20.8), (-17, -21.5)])
add_polygon(sketch15, [(-15.7, -44.2), (-17, -43.5), (-18.3, -44.2), (-18.3, -45.8), (-17, -46.5), (-15.7, -45.8)])
sketch15.addConstraint(Sketcher.Constraint("Vertical", 0))
sketch15.addConstraint(Sketcher.Constraint("Vertical", 3))
sketch15.addConstraint(Sketcher.Constraint("Vertical", 8))
sketch15.addConstraint(Sketcher.Constraint("Vertical", 11))
sketch15.addConstraint(Sketcher.Constraint("Parallel", 1, 4))
sketch15.addConstraint(Sketcher.Constraint("Parallel", 2, 5))
sketch15.addConstraint(Sketcher.Constraint("Parallel", 4, 6))
sketch15.addConstraint(Sketcher.Constraint("Parallel", 5, 7))
sketch15.addConstraint(Sketcher.Constraint("Parallel", 6, 9))
sketch15.addConstraint(Sketcher.Constraint("Parallel", 7, 10))
sketch15.addConstraint(Sketcher.Constraint("Horizontal", 0, 2, 2, 2))
sketch15.addConstraint(Sketcher.Constraint("Horizontal", 3, 2, 5, 2))
sketch15.addConstraint(Sketcher.Constraint("Horizontal", 8, 2, 10, 2))
sketch15.addConstraint(Sketcher.Constraint("Horizontal", 7, 2, 11, 2))
sketch15.addConstraint(Sketcher.Constraint("Vertical", 1, 2, 4, 2))
sketch15.addConstraint(Sketcher.Constraint("Vertical", 4, 2, 6, 2))
sketch15.addConstraint(Sketcher.Constraint("Vertical", 3, 2, 7, 2))
sketch15.addConstraint(Sketcher.Constraint("Equal", 3, 8))
sketch15.addConstraint(Sketcher.Constraint("Angle", 1, Q("150 deg")))
sketch15.addConstraint(Sketcher.Constraint("DistanceX", 1, 2, -1, 1, Q("17 mm")))
sketch15.addConstraint(Sketcher.Constraint("DistanceY", 7, 2, 2, 2, Q("25 mm")))
sketch15.addConstraint(Sketcher.Constraint("DistanceX", 0, 2, -1, 1, Q("15.7 mm")))
sketch15.addConstraint(Sketcher.Constraint("DistanceY", 0, 1, 0, 2, Q("1.501111 mm")))
sketch15.addConstraint(Sketcher.Constraint("DistanceY", 1, 2, -1, 1, Q("18.498889 mm")))
pocket13 = body.newObject("PartDesign::Pocket", "Pocket012")
pocket13.Profile = sketch15
pocket13.Length = 5

sketch16 = body.newObject("Sketcher::SketchObject", "Sketch015")
sketch16.AttachmentSupport = (doc.getObject("XY_Plane"), [""])
sketch16.MapMode = "FlatFace"
sketch16.AttachmentOffset = App.Placement(App.Vector(0, 0, -53), App.Rotation())
add_polygon(sketch16, [(-22.8, -17.2), (-22.8, 17.2), (-20, 20), (-20, -20)])
sketch16.addConstraint(Sketcher.Constraint("Vertical", 0))
sketch16.addConstraint(Sketcher.Constraint("Vertical", 2))
sketch16.addConstraint(Sketcher.Constraint("Perpendicular", 1, 3))
sketch16.addConstraint(Sketcher.Constraint("Equal", 1, 3))
sketch16.addConstraint(Sketcher.Constraint("DistanceX", 1, 2, -1, 1, Q("20 mm")))
sketch16.addConstraint(Sketcher.Constraint("DistanceY", 2, 2, -1, 1, Q("20 mm")))
sketch16.addConstraint(Sketcher.Constraint("DistanceX", 0, 2, -1, 1, Q("22.779 mm")))
sketch16.addConstraint(Sketcher.Constraint("DistanceY", 0, 1, 0, 2, Q("34.393457 mm")))
pad3 = body.newObject("PartDesign::Pad", "Pad002")
pad3.Profile = sketch16
pad3.Length = 3

sketch17 = body.newObject("Sketcher::SketchObject", "Sketch016")
sketch17.AttachmentSupport = (doc.getObject("XY_Plane"), [""])
sketch17.MapMode = "FlatFace"
add_polygon(sketch17, [(-26, 31), (-26, 20), (-1, 20), (-1, 31)])
sketch17.addConstraint(Sketcher.Constraint("Vertical", 0))
sketch17.addConstraint(Sketcher.Constraint("Horizontal", 1))
sketch17.addConstraint(Sketcher.Constraint("Vertical", 2))
sketch17.addConstraint(Sketcher.Constraint("Horizontal", 3))
sketch17.addConstraint(Sketcher.Constraint("DistanceY", -1, 1, 0, 2, Q("20 mm")))
sketch17.addConstraint(Sketcher.Constraint("DistanceX", 1, 1, 1, 2, Q("25.023712 mm")))
sketch17.addConstraint(Sketcher.Constraint("DistanceY", 0, 2, 0, 1, Q("11.208293 mm")))
sketch17.addConstraint(Sketcher.Constraint("DistanceX", 0, 2, -1, 1, Q("26.284772 mm")))
pocket14 = body.newObject("PartDesign::Pocket", "Pocket013")
pocket14.Profile = sketch17
pocket14.Length = 40

sketch18 = body.newObject("Sketcher::SketchObject", "Sketch017")
sketch18.AttachmentSupport = (doc.getObject("XY_Plane"), [""])
sketch18.MapMode = "FlatFace"
sketch18.AttachmentOffset = App.Placement(App.Vector(0, 0, -53), App.Rotation())
add_polygon(sketch18, [(-24.2, -13.6), (-13.6, -24.2), (-14.7, -25.3), (-25.3, -14.7)])
sketch18.addConstraint(Sketcher.Constraint("Perpendicular", 0, 1))
sketch18.addConstraint(Sketcher.Constraint("Perpendicular", 1, 2))
sketch18.addConstraint(Sketcher.Constraint("Perpendicular", 2, 3))
sketch18.addConstraint(Sketcher.Constraint("Angle", 0, Q("-45 deg")))
sketch18.addConstraint(Sketcher.Constraint("Distance", 0, Q("15 mm")))
sketch18.addConstraint(Sketcher.Constraint("Distance", 1, Q("1.5 mm")))
sketch18.addConstraint(Sketcher.Constraint("DistanceX", 1, 2, -1, 1, Q("14.696699 mm")))
sketch18.addConstraint(Sketcher.Constraint("DistanceY", 1, 2, -1, 1, Q("25.303301 mm")))
pad4 = body.newObject("PartDesign::Pad", "Pad003")
pad4.Profile = sketch18
pad4.Length = 10
pad4.Reversed = True

sketch19 = body.newObject("Sketcher::SketchObject", "Sketch018")
sketch19.AttachmentSupport = (doc.getObject("XY_Plane"), [""])
sketch19.MapMode = "FlatFace"
add_polygon(sketch19, [(12, 24), (-31, 24), (-34, 20), (16, 20)])
sketch19.addConstraint(Sketcher.Constraint("Horizontal", 0))
sketch19.addConstraint(Sketcher.Constraint("Horizontal", 2))
sketch19.addConstraint(Sketcher.Constraint("Perpendicular", 1, 3))
sketch19.addConstraint(Sketcher.Constraint("Equal", 1, 3))
sketch19.addConstraint(Sketcher.Constraint("Distance", 1, Q("5 mm")))
sketch19.addConstraint(Sketcher.Constraint("DistanceY", -1, 1, 1, 2, Q("20 mm")))
sketch19.addConstraint(Sketcher.Constraint("DistanceX", 2, 1, 2, 2, Q("49.954951 mm")))
sketch19.addConstraint(Sketcher.Constraint("DistanceX", 0, 2, -1, 1, Q("30.662058 mm")))
pad5 = body.newObject("PartDesign::Pad", "Pad004")
pad5.Profile = sketch19
pad5.Length = 4
pad5.Reversed = True

sketch20 = body.newObject("Sketcher::SketchObject", "Sketch019")
sketch20.AttachmentSupport = (doc.getObject("XY_Plane"), [""])
sketch20.MapMode = "FlatFace"
sketch20.addGeometry(Part.Circle(App.Vector(15.5, -15.5, 0), App.Vector(0, 0, 1), 1.6), False)
sketch20.addGeometry(Part.Circle(App.Vector(15.5, 15.5, 0), App.Vector(0, 0, 1), 1.6), False)
sketch20.addGeometry(Part.Circle(App.Vector(-16, -16, 0), App.Vector(0, 0, 1), 1.6), False)
sketch20.addConstraint(Sketcher.Constraint("Equal", 0, 1))
sketch20.addConstraint(Sketcher.Constraint("Equal", 1, 2))
sketch20.addConstraint(Sketcher.Constraint("Symmetric", 0, 3, 1, 3, -1))
sketch20.addConstraint(Sketcher.Constraint("Diameter", 0, Q("3.3 mm")))
sketch20.addConstraint(Sketcher.Constraint("DistanceX", 2, 3, -1, 1, Q("16 mm")))
sketch20.addConstraint(Sketcher.Constraint("DistanceY", 2, 3, -1, 1, Q("16 mm")))
sketch20.addConstraint(Sketcher.Constraint("DistanceY", 0, 3, 1, 3, Q("31 mm")))
sketch20.addConstraint(Sketcher.Constraint("DistanceX", -1, 1, 0, 3, Q("15.5 mm")))
pocket15 = body.newObject("PartDesign::Pocket", "Pocket014")
pocket15.Profile = sketch20
pocket15.Type = "ThroughAll"

sketch21 = body.newObject("Sketcher::SketchObject", "Sketch020")
sketch21.AttachmentSupport = (doc.getObject("YZ_Plane"), [""])
sketch21.MapMode = "FlatFace"
sketch21.AttachmentOffset = App.Placement(App.Vector(0, 0, -1.000006), App.Rotation())
sketch21.addGeometry(Part.Circle(App.Vector(16, -36, 0), App.Vector(0, 0, 1), 1.1), False)
sketch21.addGeometry(Part.Circle(App.Vector(-16, -36, 0), App.Vector(0, 0, 1), 1.1), False)
sketch21.addConstraint(Sketcher.Constraint("Equal", 0, 1))
sketch21.addConstraint(Sketcher.Constraint("Symmetric", 0, 3, 1, 3, -2))
sketch21.addConstraint(Sketcher.Constraint("Diameter", 0, Q("2.3 mm")))
sketch21.addConstraint(Sketcher.Constraint("DistanceX", -1, 1, 0, 3, Q("16 mm")))
sketch21.addConstraint(Sketcher.Constraint("DistanceY", 0, 3, -1, 1, Q("36 mm")))
pocket16 = body.newObject("PartDesign::Pocket", "Pocket015")
pocket16.Profile = sketch21
pocket16.Length = 6

sketch22 = body.newObject("Sketcher::SketchObject", "Sketch021")
sketch22.AttachmentSupport = (doc.getObject("XY_Plane"), [""])
sketch22.MapMode = "FlatFace"
sketch22.AttachmentOffset = App.Placement(App.Vector(0, 0, -53), App.Rotation())
add_polygon(sketch22, [(-13.4, 12.2), (-12.8, 13.2), (-11.6, 13.2), (-11, 12.2), (-11.6, 11.2), (-12.8, 11.2)])
sketch22.addConstraint(Sketcher.Constraint("Horizontal", 1))
sketch22.addConstraint(Sketcher.Constraint("Horizontal", 4))
sketch22.addConstraint(Sketcher.Constraint("Parallel", 0, 3))
sketch22.addConstraint(Sketcher.Constraint("Parallel", 2, 5))
sketch22.addConstraint(Sketcher.Constraint("Horizontal", 2, 2, 5, 2))
sketch22.addConstraint(Sketcher.Constraint("Vertical", 1, 2, 3, 2))
sketch22.addConstraint(Sketcher.Constraint("Vertical", 0, 2, 4, 2))
sketch22.addConstraint(Sketcher.Constraint("Angle", 0, Q("60 deg")))
sketch22.addConstraint(Sketcher.Constraint("DistanceY", 2, 2, 1, 2, Q("1 mm")))
sketch22.addConstraint(Sketcher.Constraint("DistanceY", -1, 1, 0, 2, Q("13.2 mm")))
sketch22.addConstraint(Sketcher.Constraint("DistanceX", 1, 1, 1, 2, Q("1.154701 mm")))
sketch22.addConstraint(Sketcher.Constraint("DistanceX", 2, 2, -1, 1, Q("11.045299 mm")))
pocket17 = body.newObject("PartDesign::Pocket", "Pocket016")
pocket17.Profile = sketch22
pocket17.Type = "ThroughAll"
pocket17.Reversed = True

sketch23 = body.newObject("Sketcher::SketchObject", "Sketch022")
sketch23.AttachmentSupport = (doc.getObject("XY_Plane"), [""])
sketch23.MapMode = "FlatFace"
sketch23.addGeometry(Part.Circle(App.Vector(-12.2, 12.2, 0), App.Vector(0, 0, 1), 2.1), False)
sketch23.addConstraint(Sketcher.Constraint("Diameter", 0, Q("4.25 mm")))
sketch23.addConstraint(Sketcher.Constraint("DistanceX", 0, 3, -1, 1, Q("12.2 mm")))
sketch23.addConstraint(Sketcher.Constraint("DistanceY", -1, 1, 0, 3, Q("12.2 mm")))
pocket18 = body.newObject("PartDesign::Pocket", "Pocket017")
pocket18.Profile = sketch23
pocket18.Length = 37
body2 = doc.addObject("PartDesign::Body", "Body001")
doc.recompute()

body.Placement = App.Placement(App.Vector(0, 0, 0), App.Rotation(App.Vector(1, 0, 0), 90))
boolean = body2.newObject("PartDesign::Boolean", "Boolean")
boolean.Type = "Fuse"
boolean.addObjects([body])
body3 = doc.addObject("PartDesign::Body", "Body002")
doc.recompute()

body2.Placement = App.Placement(App.Vector(0, 0, 0), App.Rotation(App.Vector(0, 1, 0), 315))
boolean2 = body3.newObject("PartDesign::Boolean", "Boolean001")
boolean2.Type = "Fuse"
boolean2.addObjects([body2])

doc.recompute()
